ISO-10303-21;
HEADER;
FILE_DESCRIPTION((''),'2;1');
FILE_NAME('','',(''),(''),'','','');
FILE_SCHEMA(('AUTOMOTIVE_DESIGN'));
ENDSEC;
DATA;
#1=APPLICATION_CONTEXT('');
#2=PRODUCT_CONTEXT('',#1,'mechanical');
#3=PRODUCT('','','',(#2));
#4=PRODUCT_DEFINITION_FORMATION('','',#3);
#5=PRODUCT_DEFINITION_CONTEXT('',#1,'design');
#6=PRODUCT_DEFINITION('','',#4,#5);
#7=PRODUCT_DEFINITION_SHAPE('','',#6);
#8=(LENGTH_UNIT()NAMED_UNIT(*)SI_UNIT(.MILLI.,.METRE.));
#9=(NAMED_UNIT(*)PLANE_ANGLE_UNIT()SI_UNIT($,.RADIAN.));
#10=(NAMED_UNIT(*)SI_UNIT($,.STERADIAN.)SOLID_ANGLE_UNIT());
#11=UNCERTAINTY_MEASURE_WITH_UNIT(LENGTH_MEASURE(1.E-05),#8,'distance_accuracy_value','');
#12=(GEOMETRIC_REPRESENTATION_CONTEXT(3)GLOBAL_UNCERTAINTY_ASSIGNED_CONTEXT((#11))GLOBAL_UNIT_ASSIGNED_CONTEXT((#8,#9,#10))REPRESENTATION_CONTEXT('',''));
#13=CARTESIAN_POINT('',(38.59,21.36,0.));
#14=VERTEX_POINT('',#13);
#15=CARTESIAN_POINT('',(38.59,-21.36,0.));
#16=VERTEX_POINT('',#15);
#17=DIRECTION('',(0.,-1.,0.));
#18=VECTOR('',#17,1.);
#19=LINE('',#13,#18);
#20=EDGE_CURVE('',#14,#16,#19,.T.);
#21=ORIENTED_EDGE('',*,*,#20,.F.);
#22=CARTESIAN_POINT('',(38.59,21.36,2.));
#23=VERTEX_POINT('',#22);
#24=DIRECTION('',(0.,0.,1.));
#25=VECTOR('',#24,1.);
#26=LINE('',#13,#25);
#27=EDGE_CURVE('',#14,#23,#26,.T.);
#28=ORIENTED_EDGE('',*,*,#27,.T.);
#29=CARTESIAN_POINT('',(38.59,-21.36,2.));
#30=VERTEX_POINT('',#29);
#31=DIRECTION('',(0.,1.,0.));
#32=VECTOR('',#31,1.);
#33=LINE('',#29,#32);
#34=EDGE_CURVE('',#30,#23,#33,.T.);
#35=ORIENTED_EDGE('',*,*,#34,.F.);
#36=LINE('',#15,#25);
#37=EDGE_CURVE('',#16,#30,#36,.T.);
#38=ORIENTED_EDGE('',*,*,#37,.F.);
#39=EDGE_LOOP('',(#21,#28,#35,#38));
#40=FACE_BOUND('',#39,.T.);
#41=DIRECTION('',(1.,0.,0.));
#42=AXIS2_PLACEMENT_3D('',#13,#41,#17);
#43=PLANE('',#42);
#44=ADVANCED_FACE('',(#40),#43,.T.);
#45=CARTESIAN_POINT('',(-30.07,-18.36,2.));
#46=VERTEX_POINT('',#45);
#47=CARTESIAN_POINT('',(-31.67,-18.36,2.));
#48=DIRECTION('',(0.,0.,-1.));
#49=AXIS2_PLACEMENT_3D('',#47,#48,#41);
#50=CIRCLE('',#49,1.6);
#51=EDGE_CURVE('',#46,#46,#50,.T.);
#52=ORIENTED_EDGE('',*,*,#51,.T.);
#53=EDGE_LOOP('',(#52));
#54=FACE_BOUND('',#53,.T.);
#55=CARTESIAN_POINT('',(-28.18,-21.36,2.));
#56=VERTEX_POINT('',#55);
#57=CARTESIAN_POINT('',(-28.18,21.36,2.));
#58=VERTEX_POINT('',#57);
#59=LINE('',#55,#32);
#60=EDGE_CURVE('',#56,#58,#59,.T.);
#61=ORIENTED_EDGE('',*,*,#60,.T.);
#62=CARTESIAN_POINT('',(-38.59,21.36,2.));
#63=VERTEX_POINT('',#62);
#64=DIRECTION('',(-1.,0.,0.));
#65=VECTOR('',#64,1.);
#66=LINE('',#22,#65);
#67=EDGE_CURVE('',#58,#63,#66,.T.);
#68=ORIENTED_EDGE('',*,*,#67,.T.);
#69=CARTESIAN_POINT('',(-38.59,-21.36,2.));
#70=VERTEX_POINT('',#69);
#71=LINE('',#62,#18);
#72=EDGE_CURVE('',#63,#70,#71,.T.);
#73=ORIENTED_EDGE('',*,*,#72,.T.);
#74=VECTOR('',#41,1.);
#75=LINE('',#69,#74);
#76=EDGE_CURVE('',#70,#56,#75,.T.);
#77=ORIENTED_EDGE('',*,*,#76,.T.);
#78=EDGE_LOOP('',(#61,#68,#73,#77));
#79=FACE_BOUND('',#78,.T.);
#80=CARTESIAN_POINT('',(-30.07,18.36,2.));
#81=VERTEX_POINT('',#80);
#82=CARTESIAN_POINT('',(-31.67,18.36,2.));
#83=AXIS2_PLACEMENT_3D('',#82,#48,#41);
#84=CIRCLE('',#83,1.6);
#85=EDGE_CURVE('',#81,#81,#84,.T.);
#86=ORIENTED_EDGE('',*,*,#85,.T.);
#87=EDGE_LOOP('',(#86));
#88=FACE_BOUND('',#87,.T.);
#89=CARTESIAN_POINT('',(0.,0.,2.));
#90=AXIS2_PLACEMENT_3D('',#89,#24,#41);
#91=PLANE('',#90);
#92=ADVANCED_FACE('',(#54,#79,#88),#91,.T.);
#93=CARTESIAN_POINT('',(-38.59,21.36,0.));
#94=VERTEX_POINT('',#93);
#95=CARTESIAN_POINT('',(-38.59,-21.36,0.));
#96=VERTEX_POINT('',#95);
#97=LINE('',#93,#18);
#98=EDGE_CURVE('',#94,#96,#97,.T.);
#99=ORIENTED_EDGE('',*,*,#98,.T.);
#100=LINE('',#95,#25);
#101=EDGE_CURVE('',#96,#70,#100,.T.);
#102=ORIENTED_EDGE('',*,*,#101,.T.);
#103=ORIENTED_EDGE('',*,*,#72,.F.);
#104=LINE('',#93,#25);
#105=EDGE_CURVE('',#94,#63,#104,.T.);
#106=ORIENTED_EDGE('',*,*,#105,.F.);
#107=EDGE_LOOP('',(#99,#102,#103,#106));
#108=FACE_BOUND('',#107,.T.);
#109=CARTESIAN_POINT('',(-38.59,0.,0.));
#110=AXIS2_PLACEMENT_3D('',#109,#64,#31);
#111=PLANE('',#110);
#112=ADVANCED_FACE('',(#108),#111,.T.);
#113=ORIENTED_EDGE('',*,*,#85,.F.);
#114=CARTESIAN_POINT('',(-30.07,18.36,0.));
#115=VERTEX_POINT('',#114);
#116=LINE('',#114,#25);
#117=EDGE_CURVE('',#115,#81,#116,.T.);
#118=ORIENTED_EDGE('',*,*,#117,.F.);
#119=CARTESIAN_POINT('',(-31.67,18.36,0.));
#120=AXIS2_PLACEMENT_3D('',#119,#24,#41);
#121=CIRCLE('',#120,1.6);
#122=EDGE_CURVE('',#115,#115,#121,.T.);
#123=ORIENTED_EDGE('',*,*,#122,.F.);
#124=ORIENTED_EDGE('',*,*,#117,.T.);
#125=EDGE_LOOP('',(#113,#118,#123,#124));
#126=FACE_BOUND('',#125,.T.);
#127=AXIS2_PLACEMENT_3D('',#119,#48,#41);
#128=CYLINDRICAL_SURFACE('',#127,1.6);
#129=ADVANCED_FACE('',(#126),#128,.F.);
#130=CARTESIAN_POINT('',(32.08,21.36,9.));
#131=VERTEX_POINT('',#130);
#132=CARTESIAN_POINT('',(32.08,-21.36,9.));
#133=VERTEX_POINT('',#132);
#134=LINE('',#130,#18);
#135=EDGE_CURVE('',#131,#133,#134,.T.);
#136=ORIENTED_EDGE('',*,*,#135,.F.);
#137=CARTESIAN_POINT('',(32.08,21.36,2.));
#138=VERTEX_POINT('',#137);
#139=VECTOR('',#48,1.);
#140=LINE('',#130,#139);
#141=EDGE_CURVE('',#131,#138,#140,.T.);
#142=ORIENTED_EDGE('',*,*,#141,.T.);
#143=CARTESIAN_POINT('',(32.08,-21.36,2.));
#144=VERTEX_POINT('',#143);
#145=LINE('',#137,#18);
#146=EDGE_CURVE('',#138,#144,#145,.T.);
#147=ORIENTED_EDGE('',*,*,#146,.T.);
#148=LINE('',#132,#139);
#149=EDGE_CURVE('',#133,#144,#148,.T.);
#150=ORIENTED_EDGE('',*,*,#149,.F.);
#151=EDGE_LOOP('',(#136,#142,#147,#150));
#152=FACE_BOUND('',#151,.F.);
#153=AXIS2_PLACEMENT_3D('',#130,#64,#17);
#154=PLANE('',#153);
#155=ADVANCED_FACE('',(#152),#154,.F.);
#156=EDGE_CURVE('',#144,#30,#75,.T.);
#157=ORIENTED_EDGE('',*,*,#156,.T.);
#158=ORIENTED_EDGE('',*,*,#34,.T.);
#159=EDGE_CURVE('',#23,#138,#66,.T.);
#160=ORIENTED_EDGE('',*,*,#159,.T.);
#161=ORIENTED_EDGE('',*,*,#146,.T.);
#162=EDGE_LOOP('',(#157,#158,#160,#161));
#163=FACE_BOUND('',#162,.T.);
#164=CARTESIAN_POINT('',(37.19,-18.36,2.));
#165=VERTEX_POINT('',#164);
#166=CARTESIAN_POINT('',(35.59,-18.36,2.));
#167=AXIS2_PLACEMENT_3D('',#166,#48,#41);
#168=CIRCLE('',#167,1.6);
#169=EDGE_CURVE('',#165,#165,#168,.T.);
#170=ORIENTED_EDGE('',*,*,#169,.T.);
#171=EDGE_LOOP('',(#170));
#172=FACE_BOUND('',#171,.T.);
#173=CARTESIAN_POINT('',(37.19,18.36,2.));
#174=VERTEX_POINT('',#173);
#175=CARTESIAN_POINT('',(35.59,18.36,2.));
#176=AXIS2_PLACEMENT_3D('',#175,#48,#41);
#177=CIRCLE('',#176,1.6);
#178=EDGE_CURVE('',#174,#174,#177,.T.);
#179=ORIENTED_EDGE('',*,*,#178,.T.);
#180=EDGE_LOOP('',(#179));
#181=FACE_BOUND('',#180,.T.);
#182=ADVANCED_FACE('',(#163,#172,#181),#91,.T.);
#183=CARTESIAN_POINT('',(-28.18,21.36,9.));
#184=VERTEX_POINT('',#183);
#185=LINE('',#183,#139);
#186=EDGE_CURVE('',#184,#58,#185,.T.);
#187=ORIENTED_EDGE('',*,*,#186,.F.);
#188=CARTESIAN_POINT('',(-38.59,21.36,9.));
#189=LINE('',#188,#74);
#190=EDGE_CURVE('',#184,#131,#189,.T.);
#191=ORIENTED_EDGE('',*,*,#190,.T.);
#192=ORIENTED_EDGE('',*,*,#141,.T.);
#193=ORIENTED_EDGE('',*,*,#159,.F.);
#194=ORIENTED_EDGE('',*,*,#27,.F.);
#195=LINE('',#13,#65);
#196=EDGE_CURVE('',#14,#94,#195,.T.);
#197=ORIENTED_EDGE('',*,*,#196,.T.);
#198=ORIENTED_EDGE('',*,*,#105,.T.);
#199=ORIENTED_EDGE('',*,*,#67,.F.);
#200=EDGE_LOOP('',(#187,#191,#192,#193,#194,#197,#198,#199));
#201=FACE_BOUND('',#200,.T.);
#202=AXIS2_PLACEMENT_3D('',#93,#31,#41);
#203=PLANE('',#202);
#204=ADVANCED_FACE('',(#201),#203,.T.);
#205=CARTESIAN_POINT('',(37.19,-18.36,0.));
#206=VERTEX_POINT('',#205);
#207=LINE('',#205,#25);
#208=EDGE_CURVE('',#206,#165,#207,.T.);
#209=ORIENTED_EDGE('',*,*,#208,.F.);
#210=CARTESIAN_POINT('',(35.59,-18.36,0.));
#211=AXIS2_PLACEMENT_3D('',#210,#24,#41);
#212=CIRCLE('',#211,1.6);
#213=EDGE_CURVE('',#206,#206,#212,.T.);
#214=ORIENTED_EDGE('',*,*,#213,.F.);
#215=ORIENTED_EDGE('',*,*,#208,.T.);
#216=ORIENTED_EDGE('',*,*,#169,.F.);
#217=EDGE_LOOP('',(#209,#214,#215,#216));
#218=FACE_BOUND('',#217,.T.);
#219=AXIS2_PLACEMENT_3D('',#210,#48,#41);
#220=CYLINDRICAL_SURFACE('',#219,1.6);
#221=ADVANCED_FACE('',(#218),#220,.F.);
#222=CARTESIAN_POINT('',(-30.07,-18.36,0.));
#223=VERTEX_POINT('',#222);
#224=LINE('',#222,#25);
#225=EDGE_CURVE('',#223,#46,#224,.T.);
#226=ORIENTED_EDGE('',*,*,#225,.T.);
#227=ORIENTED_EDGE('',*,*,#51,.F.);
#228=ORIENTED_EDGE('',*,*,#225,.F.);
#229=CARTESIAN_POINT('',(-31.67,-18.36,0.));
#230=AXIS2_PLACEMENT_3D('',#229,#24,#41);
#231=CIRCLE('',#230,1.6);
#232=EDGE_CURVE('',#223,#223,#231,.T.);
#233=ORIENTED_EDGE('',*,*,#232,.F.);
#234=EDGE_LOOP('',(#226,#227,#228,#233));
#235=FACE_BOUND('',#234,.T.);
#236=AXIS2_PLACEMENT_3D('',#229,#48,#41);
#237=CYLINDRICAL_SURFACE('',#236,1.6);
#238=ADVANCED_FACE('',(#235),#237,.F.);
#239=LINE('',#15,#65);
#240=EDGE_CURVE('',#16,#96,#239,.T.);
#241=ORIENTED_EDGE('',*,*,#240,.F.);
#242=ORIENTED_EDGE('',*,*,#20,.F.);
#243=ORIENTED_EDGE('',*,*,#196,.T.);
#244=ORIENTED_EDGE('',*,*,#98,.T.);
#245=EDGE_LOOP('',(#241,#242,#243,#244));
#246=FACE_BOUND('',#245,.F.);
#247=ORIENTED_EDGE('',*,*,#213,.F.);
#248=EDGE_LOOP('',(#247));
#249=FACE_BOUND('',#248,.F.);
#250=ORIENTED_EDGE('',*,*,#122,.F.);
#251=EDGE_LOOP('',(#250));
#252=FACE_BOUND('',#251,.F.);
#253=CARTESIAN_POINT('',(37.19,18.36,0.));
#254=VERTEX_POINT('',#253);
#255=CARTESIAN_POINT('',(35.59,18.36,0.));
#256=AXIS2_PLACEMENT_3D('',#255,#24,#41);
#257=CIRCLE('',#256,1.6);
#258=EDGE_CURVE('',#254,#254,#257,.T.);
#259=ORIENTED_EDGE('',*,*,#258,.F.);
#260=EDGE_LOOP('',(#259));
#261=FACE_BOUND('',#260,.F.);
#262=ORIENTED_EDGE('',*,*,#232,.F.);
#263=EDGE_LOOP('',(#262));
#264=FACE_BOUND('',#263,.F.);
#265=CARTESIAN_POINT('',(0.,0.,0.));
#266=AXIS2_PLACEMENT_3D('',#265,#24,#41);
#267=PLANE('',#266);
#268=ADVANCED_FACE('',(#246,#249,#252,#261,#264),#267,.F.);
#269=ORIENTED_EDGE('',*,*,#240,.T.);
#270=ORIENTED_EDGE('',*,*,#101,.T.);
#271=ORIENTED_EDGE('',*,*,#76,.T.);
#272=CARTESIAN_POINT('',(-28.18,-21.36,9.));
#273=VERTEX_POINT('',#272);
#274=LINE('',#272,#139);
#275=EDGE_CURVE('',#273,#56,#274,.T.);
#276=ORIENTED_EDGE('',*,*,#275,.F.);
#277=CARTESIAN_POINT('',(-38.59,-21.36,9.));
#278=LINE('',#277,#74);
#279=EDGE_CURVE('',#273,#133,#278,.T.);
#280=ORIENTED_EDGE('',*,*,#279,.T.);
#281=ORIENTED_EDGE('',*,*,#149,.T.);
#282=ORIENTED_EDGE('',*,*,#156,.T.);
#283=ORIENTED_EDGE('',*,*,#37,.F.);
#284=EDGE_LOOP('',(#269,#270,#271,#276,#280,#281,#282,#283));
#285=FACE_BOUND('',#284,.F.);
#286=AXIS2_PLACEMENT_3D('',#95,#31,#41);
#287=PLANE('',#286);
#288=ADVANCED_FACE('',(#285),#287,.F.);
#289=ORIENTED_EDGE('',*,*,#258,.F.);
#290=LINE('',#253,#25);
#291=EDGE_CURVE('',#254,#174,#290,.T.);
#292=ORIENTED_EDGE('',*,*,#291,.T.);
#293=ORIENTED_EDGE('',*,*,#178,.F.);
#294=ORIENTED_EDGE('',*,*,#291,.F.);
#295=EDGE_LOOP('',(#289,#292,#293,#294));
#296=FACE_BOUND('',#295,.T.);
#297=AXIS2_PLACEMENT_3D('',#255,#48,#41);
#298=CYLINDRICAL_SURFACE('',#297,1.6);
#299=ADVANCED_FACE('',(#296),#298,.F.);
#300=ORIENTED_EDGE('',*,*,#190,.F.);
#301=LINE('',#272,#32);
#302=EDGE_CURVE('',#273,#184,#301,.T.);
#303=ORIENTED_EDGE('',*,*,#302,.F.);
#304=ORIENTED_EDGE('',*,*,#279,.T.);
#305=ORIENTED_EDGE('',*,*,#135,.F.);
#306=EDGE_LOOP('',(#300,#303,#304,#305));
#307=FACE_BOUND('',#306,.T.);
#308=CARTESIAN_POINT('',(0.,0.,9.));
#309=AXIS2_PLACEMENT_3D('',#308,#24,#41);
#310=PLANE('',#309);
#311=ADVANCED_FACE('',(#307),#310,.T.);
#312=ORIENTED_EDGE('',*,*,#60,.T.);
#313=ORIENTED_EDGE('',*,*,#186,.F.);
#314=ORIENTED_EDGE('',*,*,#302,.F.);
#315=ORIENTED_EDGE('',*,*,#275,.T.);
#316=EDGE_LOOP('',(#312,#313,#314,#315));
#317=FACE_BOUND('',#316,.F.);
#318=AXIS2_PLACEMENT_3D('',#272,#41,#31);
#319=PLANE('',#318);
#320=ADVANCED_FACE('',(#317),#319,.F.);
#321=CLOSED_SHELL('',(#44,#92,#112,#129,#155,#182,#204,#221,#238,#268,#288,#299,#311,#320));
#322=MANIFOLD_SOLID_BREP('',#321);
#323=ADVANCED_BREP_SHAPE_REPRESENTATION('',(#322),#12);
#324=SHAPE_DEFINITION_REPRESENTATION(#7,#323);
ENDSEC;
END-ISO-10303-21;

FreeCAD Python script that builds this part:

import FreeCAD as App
import Part
import Sketcher

V = App.Vector


def add_polygon(sketch, points):
    """Adds a closed chain of lines whose ends are joined by coincident constraints."""
    first, n = sketch.GeometryCount, len(points)
    for a, b in zip(points, points[1:] + points[:1]):
        sketch.addGeometry(Part.LineSegment(App.Vector(*a, 0), App.Vector(*b, 0)), False)
    for i in range(n):
        sketch.addConstraint(Sketcher.Constraint("Coincident", first + i, 2, first + (i + 1) % n, 1))

doc = App.newDocument("Part")
body = doc.addObject("PartDesign::Body", "Body")

sketch1 = doc.addObject("Sketcher::SketchObject", "Sketch")
body.addObject(sketch1)
sketch1.AttachmentSupport = (doc.XY_Plane, [""])
sketch1.MapMode = "FlatFace"
add_polygon(sketch1, [(-38.59, 21.36), (-38.59, -21.36), (38.59, -21.36), (38.59, 21.36)])
sketch1.addGeometry(Part.Circle(V(-31.67, 18.36, 0), V(0, 0, 1), 1.6), False)
sketch1.addGeometry(Part.Circle(V(-31.67, -18.36, 0), V(0, 0, 1), 1.6), False)
sketch1.addGeometry(Part.Circle(V(35.59, 18.36, 0), V(0, 0, 1), 1.6), False)
sketch1.addGeometry(Part.Circle(V(35.59, -18.36, 0), V(0, 0, 1), 1.6), False)
sketch1.addConstraint([
    Sketcher.Constraint("Vertical", 0),
    Sketcher.Constraint("Horizontal", 1),
    Sketcher.Constraint("Vertical", 2),
    Sketcher.Constraint("Horizontal", 3),
    Sketcher.Constraint("Equal", 4, 5),
    Sketcher.Constraint("Equal", 5, 6),
    Sketcher.Constraint("Equal", 6, 7),
    Sketcher.Constraint("Symmetric", 0, 2, 2, 2, -1, 1),
    Sketcher.Constraint("Symmetric", 4, 3, 5, 3, -1),
    Sketcher.Constraint("Symmetric", 6, 3, 7, 3, -1),
    Sketcher.Constraint("Horizontal", 4, 3, 6, 3),
    Sketcher.Constraint("Diameter", 4, 3.2),
    Sketcher.Constraint("DistanceY", 0, 2, 5, 3, 3.0),
    Sketcher.Constraint("DistanceX", 7, 3, 1, 2, 3.0),
    Sketcher.Constraint("DistanceX", 1, 1, 1, 2, 77.18),
    Sketcher.Constraint("DistanceY", 0, 2, -1, 1, 21.36),
    Sketcher.Constraint("DistanceX", 4, 3, 6, 3, 67.26),
])
pad1 = doc.addObject("PartDesign::Pad", "Pad")
body.addObject(pad1)
pad1.Profile = sketch1
pad1.Length = 9

sketch2 = doc.addObject("Sketcher::SketchObject", "Sketch001")
body.addObject(sketch2)
sketch2.AttachmentSupport = (doc.XY_Plane, [""])
sketch2.MapMode = "FlatFace"
sketch2.AttachmentOffset = App.Placement(V(0, 0, 9), App.Rotation())
add_polygon(sketch2, [(38.59, -21.36), (38.59, 21.36), (32.08, 21.36), (32.08, -21.36)])
add_polygon(sketch2, [(-28.18, -21.36), (-28.18, 21.36), (-38.59, 21.36), (-38.59, -21.36)])
sketch2.addConstraint([
    Sketcher.Constraint("Vertical", 0),
    Sketcher.Constraint("Horizontal", 1),
    Sketcher.Constraint("Vertical", 2),
    Sketcher.Constraint("Horizontal", 3),
    Sketcher.Constraint("Vertical", 4),
    Sketcher.Constraint("Horizontal", 5),
    Sketcher.Constraint("Vertical", 6),
    Sketcher.Constraint("Horizontal", 7),
    Sketcher.Constraint("Symmetric", 3, 2, 5, 2, -1, 1),
    Sketcher.Constraint("Horizontal", 1, 2, 4, 2),
    Sketcher.Constraint("Horizontal", 3, 2, 6, 2),
    Sketcher.Constraint("DistanceX", 1, 2, 1, 1, 6.51),
    Sketcher.Constraint("DistanceX", 4, 2, 1, 2, 60.26),
    Sketcher.Constraint("DistanceX", 5, 2, 5, 1, 10.41),
    Sketcher.Constraint("DistanceY", 0, 1, 0, 2, 42.72),
])
pocket1 = doc.addObject("PartDesign::Pocket", "Pocket")
body.addObject(pocket1)
pocket1.Profile = sketch2
pocket1.Length = 7

doc.recompute()
